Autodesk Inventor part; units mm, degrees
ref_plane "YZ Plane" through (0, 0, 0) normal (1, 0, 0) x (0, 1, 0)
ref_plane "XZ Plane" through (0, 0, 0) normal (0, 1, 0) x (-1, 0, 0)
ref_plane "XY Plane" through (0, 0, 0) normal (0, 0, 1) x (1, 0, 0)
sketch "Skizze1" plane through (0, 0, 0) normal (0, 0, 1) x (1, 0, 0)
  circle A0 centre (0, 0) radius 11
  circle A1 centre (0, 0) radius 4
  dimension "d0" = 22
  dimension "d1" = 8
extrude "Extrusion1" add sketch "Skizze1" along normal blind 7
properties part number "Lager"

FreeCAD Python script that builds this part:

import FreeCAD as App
import Part
import Sketcher
from FreeCAD import Vector
Q = App.Units.Quantity

doc = App.newDocument("Part")
body = doc.addObject("PartDesign::Body", "Body")

sketch1 = body.newObject("Sketcher::SketchObject", "Sketch")
sketch1.AttachmentSupport = (doc.getObject("XY_Plane"), [""])
sketch1.MapMode = "FlatFace"
sketch1.addGeometry([
    Part.Circle(Vector(0, 0, 0), Vector(0, 0, 1), 11),
    Part.Circle(Vector(0, 0, 0), Vector(0, 0, 1), 4),
], False)
sketch1.addConstraint([
    Sketcher.Constraint("Coincident", 0, 3, -1, 1),
    Sketcher.Constraint("Coincident", 1, 3, -1, 1),
    Sketcher.Constraint("Diameter", 0, Q("22 mm")),
    Sketcher.Constraint("Diameter", 1, Q("8 mm")),
])
pad1 = body.newObject("PartDesign::Pad", "Pad")
pad1.Profile = sketch1
pad1.Length = 7

doc.recompute()
